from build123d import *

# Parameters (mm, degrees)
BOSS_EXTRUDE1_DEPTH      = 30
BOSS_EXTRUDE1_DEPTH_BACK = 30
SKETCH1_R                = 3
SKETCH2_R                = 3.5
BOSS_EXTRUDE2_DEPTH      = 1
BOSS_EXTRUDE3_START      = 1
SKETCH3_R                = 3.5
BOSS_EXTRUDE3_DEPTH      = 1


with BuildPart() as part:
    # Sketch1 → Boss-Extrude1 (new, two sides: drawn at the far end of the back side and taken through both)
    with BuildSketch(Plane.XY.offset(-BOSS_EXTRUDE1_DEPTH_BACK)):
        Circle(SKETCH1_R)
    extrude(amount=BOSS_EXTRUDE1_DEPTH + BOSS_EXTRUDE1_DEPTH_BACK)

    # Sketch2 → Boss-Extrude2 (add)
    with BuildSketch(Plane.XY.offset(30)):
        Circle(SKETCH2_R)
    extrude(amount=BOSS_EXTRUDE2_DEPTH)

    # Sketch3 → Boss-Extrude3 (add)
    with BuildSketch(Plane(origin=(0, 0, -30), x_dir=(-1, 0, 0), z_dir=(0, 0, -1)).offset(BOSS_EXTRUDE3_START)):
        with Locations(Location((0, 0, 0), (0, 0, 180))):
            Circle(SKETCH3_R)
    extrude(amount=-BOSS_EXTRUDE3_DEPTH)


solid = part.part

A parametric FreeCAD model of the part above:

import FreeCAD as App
import Part
import Sketcher

doc = App.newDocument("Part")
body = doc.addObject("PartDesign::Body", "Body")

sketch1 = body.newObject("Sketcher::SketchObject", "Sketch")
sketch1.AttachmentSupport = (doc.getObject("XY_Plane"), [""])
sketch1.MapMode = "FlatFace"
sketch1.addGeometry(Part.Circle(App.Vector(0, 0, 0), App.Vector(0, 0, 1), 3), False)
sketch1.addConstraint(Sketcher.Constraint("Coincident", 0, 3, -1, 1))
sketch1.addConstraint(Sketcher.Constraint("Diameter", 0, 6.0))
pad1 = body.newObject("PartDesign::Pad", "Pad")
pad1.Profile = sketch1
pad1.Type = "TwoLengths"
pad1.Length = 30
pad1.Length2 = 30

sketch2 = body.newObject("Sketcher::SketchObject", "Sketch001")
sketch2.AttachmentSupport = (doc.getObject("XY_Plane"), [""])
sketch2.MapMode = "FlatFace"
sketch2.AttachmentOffset = App.Placement(App.Vector(0, 0, 30), App.Rotation())
sketch2.addGeometry(Part.Circle(App.Vector(0, 0, 0), App.Vector(0, 0, 1), 3.5), False)
sketch2.addConstraint(Sketcher.Constraint("Coincident", 0, 3, -1, 1))
sketch2.addConstraint(Sketcher.Constraint("Diameter", 0, 7.0))
pad2 = body.newObject("PartDesign::Pad", "Pad001")
pad2.Profile = sketch2
pad2.Length = 1

sketch3 = body.newObject("Sketcher::SketchObject", "Sketch002")
sketch3.AttachmentSupport = (doc.getObject("XY_Plane"), [""])
sketch3.MapMode = "FlatFace"
sketch3.AttachmentOffset = App.Placement(App.Vector(0, 0, -31), App.Rotation())
sketch3.addGeometry(Part.Circle(App.Vector(0, 0, 0), App.Vector(0, 0, 1), 3.5), False)
sketch3.addConstraint(Sketcher.Constraint("Coincident", 0, 3, -1, 1))
sketch3.addConstraint(Sketcher.Constraint("Diameter", 0, 7.0))
pad3 = body.newObject("PartDesign::Pad", "Pad002")
pad3.Profile = sketch3
pad3.Length = 1

doc.recompute()
